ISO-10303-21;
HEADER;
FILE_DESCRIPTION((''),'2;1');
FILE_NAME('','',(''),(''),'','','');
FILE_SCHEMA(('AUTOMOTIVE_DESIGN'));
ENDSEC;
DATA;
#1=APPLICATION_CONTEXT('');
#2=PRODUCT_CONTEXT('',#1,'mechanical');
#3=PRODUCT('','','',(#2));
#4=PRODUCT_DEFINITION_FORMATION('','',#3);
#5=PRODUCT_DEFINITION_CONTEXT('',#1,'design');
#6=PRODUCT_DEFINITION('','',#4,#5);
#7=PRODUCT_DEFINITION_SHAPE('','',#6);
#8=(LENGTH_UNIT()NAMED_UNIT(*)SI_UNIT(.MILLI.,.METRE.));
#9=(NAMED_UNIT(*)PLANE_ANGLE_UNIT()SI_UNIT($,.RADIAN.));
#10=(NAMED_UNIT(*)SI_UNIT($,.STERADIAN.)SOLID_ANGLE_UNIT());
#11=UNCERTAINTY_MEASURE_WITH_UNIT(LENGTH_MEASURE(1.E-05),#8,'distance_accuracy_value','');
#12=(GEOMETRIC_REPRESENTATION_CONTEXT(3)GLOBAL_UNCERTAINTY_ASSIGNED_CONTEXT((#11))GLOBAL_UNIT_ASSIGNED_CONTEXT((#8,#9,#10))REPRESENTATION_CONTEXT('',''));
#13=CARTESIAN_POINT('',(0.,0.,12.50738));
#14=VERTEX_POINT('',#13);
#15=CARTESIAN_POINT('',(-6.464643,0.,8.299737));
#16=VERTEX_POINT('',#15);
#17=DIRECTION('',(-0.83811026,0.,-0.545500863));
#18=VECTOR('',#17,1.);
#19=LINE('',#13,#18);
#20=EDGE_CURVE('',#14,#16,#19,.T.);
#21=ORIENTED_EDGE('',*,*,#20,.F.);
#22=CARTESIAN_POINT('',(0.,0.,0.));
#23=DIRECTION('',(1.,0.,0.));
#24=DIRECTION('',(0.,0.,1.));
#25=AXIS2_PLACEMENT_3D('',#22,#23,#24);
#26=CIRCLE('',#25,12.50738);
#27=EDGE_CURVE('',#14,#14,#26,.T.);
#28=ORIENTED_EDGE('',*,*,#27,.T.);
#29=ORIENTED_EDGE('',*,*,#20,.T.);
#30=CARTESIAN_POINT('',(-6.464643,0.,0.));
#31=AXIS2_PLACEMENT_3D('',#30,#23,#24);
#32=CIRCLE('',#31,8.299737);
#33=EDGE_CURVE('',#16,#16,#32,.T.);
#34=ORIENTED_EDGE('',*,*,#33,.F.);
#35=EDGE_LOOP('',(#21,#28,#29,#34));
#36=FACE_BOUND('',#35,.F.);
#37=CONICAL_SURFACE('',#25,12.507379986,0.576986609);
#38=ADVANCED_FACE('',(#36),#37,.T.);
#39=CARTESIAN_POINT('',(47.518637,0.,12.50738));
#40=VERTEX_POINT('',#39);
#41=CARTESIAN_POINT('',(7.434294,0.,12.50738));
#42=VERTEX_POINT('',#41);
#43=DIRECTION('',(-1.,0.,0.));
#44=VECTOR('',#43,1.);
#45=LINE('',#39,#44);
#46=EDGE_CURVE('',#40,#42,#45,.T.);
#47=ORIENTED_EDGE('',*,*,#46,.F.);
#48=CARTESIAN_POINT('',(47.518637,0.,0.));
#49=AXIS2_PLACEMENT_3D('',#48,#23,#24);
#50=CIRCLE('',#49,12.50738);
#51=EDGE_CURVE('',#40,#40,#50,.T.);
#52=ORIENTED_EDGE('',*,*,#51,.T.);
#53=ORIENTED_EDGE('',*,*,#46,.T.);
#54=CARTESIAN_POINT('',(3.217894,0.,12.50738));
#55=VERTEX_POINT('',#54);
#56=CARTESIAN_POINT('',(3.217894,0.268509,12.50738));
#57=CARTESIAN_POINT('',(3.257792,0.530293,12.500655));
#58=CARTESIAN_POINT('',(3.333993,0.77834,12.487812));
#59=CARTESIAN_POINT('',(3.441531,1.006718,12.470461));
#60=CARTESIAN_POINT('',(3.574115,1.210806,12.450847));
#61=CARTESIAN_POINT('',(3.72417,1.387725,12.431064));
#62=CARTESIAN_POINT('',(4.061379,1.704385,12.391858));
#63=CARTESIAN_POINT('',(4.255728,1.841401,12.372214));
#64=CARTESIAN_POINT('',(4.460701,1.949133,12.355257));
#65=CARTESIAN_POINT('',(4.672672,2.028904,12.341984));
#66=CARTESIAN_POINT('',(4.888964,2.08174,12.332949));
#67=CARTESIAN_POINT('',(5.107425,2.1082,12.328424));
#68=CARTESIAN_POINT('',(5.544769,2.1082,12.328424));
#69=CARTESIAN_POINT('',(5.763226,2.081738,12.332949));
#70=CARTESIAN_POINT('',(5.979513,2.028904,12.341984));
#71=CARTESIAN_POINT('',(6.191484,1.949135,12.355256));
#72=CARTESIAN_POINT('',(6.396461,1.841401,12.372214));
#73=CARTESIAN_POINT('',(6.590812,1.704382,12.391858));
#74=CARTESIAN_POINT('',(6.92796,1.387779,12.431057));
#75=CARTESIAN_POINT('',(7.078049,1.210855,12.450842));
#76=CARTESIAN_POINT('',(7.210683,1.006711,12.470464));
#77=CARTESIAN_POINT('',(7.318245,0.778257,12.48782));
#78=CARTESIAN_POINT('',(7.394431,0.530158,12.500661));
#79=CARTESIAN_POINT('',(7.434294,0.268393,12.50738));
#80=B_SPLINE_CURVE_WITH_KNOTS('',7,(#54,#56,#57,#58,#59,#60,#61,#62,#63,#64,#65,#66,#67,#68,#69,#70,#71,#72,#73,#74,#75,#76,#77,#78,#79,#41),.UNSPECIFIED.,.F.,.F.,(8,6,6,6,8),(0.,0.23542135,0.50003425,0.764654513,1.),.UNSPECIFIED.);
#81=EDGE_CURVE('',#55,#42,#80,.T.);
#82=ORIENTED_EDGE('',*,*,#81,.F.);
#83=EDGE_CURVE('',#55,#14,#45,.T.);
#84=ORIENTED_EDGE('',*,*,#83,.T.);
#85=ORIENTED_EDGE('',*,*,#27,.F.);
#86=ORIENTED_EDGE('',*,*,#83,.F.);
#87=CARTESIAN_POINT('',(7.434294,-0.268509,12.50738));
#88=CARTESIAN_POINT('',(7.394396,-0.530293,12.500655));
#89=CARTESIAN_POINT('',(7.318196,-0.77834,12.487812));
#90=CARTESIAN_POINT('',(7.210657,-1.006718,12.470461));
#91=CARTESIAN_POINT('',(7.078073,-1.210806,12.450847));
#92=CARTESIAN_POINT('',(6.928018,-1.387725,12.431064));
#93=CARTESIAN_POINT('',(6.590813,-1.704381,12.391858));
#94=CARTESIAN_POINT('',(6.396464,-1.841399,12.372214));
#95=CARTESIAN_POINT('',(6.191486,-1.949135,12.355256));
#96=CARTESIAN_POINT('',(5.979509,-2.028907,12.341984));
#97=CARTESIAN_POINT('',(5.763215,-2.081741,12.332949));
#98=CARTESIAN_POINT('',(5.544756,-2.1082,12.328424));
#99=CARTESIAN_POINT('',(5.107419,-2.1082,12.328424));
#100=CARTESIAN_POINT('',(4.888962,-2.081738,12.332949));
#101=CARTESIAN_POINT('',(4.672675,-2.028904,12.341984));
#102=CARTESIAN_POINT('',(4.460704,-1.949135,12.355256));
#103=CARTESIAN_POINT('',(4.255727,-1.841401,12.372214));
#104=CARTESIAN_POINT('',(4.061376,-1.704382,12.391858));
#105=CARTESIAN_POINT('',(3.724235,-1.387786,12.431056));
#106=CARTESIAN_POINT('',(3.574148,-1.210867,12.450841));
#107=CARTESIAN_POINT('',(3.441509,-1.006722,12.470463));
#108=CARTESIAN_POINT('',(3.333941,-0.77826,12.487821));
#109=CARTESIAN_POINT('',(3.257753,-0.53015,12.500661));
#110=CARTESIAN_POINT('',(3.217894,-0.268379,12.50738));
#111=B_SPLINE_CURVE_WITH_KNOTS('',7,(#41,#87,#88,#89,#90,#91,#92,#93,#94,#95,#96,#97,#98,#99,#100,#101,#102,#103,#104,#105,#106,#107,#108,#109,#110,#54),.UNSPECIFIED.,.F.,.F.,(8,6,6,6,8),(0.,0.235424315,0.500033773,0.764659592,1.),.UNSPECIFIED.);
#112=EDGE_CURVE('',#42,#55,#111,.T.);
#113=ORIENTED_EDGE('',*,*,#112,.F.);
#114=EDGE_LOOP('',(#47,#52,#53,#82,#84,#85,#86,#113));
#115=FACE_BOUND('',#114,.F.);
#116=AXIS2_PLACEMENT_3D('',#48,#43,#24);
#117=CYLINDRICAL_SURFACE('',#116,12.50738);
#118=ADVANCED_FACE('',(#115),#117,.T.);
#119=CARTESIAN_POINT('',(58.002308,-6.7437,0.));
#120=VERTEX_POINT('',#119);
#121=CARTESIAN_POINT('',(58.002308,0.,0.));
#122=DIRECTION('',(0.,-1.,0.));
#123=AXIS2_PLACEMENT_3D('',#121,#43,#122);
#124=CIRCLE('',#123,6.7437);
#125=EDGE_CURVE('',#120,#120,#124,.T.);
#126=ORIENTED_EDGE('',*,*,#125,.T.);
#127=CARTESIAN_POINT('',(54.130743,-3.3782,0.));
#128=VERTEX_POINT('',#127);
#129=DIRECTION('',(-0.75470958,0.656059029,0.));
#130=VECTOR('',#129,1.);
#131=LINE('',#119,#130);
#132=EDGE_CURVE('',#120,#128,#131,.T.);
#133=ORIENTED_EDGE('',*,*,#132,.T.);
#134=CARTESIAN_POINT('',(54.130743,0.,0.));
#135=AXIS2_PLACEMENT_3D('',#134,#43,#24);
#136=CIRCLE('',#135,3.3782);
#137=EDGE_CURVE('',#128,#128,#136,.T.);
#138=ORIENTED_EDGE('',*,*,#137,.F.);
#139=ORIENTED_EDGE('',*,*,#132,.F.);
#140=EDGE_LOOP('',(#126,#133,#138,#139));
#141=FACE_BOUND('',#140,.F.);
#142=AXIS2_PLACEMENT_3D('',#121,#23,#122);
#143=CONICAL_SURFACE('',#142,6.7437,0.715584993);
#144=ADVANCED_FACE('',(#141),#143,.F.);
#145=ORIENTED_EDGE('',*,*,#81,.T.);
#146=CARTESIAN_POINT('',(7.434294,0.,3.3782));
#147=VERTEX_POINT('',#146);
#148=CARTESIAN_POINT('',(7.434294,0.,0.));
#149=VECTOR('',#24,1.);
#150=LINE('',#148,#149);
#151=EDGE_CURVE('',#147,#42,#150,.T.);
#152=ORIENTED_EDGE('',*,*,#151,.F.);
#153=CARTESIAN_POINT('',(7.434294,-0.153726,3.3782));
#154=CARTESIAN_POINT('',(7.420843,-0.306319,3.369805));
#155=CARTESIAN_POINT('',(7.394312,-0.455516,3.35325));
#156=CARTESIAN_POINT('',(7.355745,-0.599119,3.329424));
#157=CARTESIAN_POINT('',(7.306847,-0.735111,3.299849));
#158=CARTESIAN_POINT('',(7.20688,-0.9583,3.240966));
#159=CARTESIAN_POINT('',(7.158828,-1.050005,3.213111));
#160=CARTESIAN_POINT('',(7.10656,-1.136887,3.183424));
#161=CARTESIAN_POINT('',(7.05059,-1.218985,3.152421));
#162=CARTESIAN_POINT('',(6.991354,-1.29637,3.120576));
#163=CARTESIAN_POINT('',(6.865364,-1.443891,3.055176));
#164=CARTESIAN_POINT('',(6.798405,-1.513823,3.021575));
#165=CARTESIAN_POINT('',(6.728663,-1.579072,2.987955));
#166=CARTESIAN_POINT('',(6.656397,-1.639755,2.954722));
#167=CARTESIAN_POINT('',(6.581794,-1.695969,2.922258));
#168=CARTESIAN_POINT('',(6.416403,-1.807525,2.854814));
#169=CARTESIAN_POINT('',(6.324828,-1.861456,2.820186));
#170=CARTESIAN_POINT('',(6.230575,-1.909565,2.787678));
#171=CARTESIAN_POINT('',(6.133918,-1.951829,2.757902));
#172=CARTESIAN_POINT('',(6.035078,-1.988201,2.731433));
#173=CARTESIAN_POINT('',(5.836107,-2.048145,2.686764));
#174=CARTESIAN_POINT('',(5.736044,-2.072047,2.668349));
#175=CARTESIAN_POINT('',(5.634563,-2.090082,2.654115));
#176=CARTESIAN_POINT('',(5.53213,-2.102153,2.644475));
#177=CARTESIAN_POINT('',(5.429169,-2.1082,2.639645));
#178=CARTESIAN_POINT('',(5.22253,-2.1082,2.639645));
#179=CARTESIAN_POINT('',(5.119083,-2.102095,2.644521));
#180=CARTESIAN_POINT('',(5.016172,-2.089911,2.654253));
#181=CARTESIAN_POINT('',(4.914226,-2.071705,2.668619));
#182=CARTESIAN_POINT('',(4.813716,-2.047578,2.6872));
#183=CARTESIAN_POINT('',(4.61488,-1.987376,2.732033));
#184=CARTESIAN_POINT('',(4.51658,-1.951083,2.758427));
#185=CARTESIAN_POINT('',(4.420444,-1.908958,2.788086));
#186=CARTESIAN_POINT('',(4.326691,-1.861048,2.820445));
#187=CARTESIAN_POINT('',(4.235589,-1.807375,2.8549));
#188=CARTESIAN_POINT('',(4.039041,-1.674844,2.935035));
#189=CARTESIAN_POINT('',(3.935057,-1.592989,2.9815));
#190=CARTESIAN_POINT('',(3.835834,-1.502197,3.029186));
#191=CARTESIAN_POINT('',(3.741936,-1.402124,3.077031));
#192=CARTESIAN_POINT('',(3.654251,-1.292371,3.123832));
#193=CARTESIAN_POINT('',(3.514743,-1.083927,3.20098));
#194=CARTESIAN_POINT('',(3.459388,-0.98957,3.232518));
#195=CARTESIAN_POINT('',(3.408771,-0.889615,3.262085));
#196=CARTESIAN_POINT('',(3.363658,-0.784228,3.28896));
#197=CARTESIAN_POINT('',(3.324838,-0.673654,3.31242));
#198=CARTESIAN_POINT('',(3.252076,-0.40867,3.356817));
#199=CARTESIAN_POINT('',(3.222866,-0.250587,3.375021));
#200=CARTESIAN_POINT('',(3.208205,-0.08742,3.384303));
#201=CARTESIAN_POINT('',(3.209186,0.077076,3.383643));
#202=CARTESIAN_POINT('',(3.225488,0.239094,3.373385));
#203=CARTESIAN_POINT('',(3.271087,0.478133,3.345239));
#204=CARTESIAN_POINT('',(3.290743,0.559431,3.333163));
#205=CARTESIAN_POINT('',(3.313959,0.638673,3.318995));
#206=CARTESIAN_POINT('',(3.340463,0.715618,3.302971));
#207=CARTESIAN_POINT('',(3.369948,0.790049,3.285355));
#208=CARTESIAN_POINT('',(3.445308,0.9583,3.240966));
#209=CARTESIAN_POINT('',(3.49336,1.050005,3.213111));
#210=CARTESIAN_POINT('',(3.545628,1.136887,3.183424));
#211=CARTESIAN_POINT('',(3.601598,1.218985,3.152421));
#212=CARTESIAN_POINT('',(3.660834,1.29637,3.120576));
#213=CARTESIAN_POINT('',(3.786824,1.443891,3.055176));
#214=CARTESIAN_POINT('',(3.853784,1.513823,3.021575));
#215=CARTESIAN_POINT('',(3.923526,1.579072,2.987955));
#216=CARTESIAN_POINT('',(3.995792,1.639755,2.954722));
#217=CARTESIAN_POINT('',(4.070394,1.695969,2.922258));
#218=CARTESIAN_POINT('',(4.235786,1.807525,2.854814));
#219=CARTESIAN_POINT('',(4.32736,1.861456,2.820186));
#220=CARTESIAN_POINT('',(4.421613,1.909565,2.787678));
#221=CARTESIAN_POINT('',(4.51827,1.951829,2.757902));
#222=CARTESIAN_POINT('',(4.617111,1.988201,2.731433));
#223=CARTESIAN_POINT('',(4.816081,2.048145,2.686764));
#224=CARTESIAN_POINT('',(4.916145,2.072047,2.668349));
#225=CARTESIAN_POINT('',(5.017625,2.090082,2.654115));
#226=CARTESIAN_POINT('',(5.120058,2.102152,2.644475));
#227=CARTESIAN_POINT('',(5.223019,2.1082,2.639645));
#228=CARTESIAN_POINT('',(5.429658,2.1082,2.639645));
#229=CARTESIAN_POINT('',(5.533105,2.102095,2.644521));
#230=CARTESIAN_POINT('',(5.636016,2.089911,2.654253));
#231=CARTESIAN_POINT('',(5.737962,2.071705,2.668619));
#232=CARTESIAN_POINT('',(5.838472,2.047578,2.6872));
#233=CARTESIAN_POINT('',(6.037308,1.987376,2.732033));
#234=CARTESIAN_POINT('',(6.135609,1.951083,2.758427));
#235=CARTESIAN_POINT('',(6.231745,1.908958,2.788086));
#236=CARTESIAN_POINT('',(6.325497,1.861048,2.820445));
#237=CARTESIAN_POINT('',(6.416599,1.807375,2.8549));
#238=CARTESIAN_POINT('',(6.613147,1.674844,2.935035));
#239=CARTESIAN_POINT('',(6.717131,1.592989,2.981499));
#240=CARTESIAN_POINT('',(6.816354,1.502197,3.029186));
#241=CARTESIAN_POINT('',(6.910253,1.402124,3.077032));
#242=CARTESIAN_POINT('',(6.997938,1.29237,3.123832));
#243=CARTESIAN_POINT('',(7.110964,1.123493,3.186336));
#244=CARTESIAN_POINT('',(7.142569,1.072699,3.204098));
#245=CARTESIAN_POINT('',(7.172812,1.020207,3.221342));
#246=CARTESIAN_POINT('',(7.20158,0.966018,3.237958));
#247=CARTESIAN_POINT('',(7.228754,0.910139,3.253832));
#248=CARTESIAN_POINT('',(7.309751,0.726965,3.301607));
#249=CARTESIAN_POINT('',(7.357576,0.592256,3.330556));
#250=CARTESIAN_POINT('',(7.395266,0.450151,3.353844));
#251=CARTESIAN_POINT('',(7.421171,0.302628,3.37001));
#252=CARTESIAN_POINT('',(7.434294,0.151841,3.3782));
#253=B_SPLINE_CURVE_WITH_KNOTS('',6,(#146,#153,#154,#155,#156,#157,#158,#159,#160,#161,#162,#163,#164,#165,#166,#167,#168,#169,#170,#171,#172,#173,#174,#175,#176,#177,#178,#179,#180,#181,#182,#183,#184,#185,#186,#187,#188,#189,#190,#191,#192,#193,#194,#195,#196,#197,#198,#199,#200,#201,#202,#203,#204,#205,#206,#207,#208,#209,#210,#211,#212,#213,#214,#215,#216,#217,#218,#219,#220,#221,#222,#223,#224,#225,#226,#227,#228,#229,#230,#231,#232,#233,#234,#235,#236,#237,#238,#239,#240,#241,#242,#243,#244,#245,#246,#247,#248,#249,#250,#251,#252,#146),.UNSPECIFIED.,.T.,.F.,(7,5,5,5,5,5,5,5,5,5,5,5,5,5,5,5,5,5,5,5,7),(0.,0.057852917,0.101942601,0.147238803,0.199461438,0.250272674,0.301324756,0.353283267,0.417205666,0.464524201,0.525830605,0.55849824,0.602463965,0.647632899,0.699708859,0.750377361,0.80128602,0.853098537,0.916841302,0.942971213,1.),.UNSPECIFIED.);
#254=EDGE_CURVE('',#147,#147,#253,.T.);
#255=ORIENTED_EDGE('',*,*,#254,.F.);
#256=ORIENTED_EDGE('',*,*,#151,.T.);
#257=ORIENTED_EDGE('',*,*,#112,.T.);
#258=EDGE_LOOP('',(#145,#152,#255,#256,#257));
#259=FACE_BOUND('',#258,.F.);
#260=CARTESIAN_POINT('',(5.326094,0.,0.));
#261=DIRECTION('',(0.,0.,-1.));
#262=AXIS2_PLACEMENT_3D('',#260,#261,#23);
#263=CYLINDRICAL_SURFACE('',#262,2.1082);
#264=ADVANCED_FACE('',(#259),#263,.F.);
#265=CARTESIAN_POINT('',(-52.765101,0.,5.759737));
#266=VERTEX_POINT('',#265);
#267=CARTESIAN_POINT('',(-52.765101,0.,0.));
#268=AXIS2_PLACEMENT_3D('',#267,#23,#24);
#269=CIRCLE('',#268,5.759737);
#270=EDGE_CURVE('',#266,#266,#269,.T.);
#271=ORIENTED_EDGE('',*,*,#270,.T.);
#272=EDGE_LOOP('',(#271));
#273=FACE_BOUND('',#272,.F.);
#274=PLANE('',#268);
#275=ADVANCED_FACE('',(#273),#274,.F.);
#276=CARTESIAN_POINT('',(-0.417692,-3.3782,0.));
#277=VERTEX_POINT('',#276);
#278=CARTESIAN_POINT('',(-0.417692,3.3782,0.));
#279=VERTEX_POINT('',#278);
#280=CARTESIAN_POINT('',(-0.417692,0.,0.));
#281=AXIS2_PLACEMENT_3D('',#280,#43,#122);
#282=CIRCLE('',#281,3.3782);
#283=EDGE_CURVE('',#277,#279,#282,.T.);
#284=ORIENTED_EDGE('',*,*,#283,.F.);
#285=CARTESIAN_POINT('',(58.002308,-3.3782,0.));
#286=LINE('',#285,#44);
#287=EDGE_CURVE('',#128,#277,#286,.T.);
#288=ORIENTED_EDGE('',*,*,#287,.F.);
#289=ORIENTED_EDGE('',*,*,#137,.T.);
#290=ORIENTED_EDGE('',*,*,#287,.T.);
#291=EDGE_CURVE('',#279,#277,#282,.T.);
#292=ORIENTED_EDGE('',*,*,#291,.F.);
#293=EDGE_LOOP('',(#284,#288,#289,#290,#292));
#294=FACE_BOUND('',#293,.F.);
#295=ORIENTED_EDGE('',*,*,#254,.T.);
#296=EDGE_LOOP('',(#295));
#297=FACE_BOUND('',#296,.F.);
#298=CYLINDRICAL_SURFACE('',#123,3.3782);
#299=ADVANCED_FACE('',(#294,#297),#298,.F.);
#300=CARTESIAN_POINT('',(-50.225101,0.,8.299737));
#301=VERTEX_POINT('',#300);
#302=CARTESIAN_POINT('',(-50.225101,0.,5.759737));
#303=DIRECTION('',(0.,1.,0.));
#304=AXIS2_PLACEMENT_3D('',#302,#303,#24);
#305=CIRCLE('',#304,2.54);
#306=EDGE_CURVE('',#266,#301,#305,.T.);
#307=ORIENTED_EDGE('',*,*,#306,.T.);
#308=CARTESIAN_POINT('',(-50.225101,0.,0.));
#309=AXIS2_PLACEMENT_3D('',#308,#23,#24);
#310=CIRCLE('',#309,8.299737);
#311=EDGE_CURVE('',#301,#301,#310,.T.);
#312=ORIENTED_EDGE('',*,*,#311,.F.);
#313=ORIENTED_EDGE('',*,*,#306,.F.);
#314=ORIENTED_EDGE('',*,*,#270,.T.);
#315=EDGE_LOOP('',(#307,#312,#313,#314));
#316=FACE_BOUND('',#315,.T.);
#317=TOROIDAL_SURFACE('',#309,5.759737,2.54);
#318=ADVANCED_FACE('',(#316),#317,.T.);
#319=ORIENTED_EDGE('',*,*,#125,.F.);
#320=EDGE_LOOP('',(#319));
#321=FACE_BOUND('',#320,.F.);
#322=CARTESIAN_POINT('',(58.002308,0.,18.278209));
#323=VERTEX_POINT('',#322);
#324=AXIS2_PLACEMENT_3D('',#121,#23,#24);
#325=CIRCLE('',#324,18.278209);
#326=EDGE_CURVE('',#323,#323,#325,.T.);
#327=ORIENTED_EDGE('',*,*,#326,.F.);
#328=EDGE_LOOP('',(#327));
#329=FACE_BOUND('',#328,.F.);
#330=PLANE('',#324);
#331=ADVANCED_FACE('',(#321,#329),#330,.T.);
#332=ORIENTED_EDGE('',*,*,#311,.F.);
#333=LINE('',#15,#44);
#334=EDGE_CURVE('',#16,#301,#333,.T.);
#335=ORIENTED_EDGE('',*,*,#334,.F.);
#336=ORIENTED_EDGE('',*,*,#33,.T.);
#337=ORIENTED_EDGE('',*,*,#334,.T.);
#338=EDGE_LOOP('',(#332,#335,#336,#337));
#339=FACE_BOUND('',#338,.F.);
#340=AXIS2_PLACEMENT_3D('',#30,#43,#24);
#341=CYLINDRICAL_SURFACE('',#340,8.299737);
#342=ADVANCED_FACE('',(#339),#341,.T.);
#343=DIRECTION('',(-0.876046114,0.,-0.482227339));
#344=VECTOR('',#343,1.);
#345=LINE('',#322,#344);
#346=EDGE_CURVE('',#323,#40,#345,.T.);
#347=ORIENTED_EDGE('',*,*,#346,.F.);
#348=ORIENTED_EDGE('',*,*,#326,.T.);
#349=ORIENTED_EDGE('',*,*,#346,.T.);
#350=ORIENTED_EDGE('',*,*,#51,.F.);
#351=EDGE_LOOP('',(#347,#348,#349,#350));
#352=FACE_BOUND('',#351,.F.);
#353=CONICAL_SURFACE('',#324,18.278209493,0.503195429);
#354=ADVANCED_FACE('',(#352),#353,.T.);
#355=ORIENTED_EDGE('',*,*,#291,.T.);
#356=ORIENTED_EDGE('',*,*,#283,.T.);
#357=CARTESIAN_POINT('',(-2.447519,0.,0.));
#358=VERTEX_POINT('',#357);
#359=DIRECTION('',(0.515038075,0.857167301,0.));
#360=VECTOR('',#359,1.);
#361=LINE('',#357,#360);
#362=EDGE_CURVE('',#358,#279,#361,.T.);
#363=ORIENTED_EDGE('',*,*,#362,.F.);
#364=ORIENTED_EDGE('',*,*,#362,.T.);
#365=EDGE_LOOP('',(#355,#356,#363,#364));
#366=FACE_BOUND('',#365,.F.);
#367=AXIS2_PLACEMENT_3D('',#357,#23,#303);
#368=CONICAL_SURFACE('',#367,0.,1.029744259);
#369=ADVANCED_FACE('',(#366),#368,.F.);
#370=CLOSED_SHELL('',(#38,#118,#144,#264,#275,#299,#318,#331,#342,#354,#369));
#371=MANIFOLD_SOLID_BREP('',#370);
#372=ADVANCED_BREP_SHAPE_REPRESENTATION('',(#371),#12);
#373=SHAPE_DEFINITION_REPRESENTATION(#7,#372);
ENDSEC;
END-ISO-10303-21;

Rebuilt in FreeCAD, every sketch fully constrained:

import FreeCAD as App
import Part
import Sketcher
Q = App.Units.Quantity


def edges_at(feature, points):
    """Names of the edges that pass closest to the given points."""
    edges = feature.Shape.Edges
    near = lambda p: min(range(len(edges)), key=lambda i: edges[i].distToShape(Part.Vertex(*p))[0])
    return sorted({f"Edge{near(p) + 1}" for p in points})


def add_polygon(sketch, points):
    """Adds a closed chain of lines whose ends are joined by coincident constraints."""
    first, n = sketch.GeometryCount, len(points)
    for a, b in zip(points, points[1:] + points[:1]):
        sketch.addGeometry(Part.LineSegment(App.Vector(*a, 0), App.Vector(*b, 0)), False)
    for i in range(n):
        sketch.addConstraint(Sketcher.Constraint("Coincident", first + i, 2, first + (i + 1) % n, 1))

doc = App.newDocument("Part")
body = doc.addObject("PartDesign::Body", "Body")

# Sketch on XZ plane
sketch1 = doc.addObject("Sketcher::SketchObject", "Sketch")
body.addObject(sketch1)
sketch1.AttachmentSupport = (doc.XZ_Plane, [""])
sketch1.MapMode = "FlatFace"
add_polygon(sketch1, [(-53, 8), (-53, 0), (58, 0), (58, 18), (48, 13), (0, 13), (-6, 8)])  # lines 0-6
sketch1.addConstraint(Sketcher.Constraint("Vertical", 0))
sketch1.addConstraint(Sketcher.Constraint("Horizontal", 1))
sketch1.addConstraint(Sketcher.Constraint("Vertical", 2))
sketch1.addConstraint(Sketcher.Constraint("Horizontal", 4))
sketch1.addConstraint(Sketcher.Constraint("Horizontal", 6))
sketch1.addConstraint(Sketcher.Constraint("PointOnObject", 0, 2, -1))
sketch1.addConstraint(Sketcher.Constraint("PointOnObject", 4, 2, -2))
sketch1.addConstraint(Sketcher.Constraint("DistanceX", 1, 1, 1, 2, Q("110.767409 mm")))
sketch1.addConstraint(Sketcher.Constraint("DistanceY", 2, 1, 2, 2, Q("18.278209 mm")))
sketch1.addConstraint(Sketcher.Constraint("DistanceX", 0, 2, -1, 1, Q("52.765101 mm")))
sketch1.addConstraint(Sketcher.Constraint("Distance", 3, Q("11.967031 mm")))
sketch1.addConstraint(Sketcher.Constraint("DistanceX", 4, 2, 4, 1, Q("47.518637 mm")))
sketch1.addConstraint(Sketcher.Constraint("DistanceX", 6, 2, 6, 1, Q("46.300458 mm")))
sketch1.addConstraint(Sketcher.Constraint("DistanceY", 0, 2, 0, 1, Q("8.299737 mm")))
revolution = doc.addObject("PartDesign::Revolution", "Revolution")
body.addObject(revolution)
revolution.Profile = sketch1
revolution.ReferenceAxis = (sketch1, ["H_Axis"])
revolution.Angle = 360
doc.recompute()

fillet = doc.addObject("PartDesign::Fillet", "Fillet")
body.addObject(fillet)
fillet.Base = (revolution, edges_at(revolution, [(-52.765, 0, -8.3)]))
fillet.Radius = Q("0.1 in")

# Sketch on YZ plane
sketch2 = doc.addObject("Sketcher::SketchObject", "Sketch001")
body.addObject(sketch2)
sketch2.AttachmentSupport = (doc.YZ_Plane, [""])
sketch2.MapMode = "FlatFace"
sketch2.AttachmentOffset = App.Placement(App.Vector(0, 0, 58.002308), App.Rotation())
sketch2.addGeometry(Part.Circle(App.Vector(0, 0, 0), App.Vector(0, 0, 1), 3.4), False)
sketch2.addConstraint(Sketcher.Constraint("Coincident", 0, 3, -1, 1))
sketch2.addConstraint(Sketcher.Constraint("Diameter", 0, Q("0.266 in")))
doc.recompute()
hole = doc.addObject("PartDesign::Hole", "Hole")
body.addObject(hole)
hole.Profile = sketch2
hole.ThreadType = "None"
hole.Diameter = Q("0.266 in")
hole.DepthType = "Dimension"
hole.Depth = Q("2.3 in")
hole.DrillPoint = "Angled"
hole.DrillPointAngle = 118
hole.HoleCutType = "Countersink"
hole.HoleCutDiameter = Q("0.531 in")
hole.HoleCutCountersinkAngle = 82

# Sketch on XY plane
sketch3 = doc.addObject("Sketcher::SketchObject", "Sketch002")
body.addObject(sketch3)
sketch3.AttachmentSupport = (doc.XY_Plane, [""])
sketch3.MapMode = "FlatFace"
sketch3.addGeometry(Part.Circle(App.Vector(5.3, 0, 0), App.Vector(0, 0, 1), 2.1), False)
sketch3.addConstraint(Sketcher.Constraint("PointOnObject", 0, 3, -1))
sketch3.addConstraint(Sketcher.Constraint("Diameter", 0, Q("0.166 in")))
sketch3.addConstraint(Sketcher.Constraint("DistanceX", -1, 1, 0, 3, Q("5.326094 mm")))
pocket1 = doc.addObject("PartDesign::Pocket", "Pocket")
body.addObject(pocket1)
pocket1.Profile = sketch3
pocket1.Type = "ThroughAll"
pocket1.Reversed = True

doc.recompute()
